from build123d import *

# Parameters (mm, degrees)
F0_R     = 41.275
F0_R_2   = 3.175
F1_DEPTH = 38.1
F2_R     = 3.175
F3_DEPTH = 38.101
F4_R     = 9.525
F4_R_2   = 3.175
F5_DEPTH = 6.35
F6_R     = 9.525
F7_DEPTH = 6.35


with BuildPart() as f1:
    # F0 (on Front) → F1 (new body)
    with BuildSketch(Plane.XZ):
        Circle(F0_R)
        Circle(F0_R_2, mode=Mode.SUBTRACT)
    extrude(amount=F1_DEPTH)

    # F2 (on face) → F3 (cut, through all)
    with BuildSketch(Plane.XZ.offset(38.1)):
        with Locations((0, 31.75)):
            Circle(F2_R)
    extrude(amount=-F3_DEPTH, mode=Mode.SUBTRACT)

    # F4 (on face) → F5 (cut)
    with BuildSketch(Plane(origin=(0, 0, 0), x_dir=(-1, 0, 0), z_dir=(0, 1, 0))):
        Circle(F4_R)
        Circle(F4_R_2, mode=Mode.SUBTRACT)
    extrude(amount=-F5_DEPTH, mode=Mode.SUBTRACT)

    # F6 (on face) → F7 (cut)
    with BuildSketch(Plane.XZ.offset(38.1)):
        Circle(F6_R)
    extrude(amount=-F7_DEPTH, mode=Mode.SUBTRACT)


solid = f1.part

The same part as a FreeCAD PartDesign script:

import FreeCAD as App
import Part
import Sketcher

V = App.Vector
Q = App.Units.Quantity

doc = App.newDocument("Part")
body = doc.addObject("PartDesign::Body", "Body")

sketch1 = doc.addObject("Sketcher::SketchObject", "Sketch")
body.addObject(sketch1)
sketch1.AttachmentSupport = (doc.XZ_Plane, [""])
sketch1.MapMode = "FlatFace"
sketch1.addGeometry(Part.Circle(V(0, 0, 0), V(0, 0, 1), 41.275), False)
sketch1.addGeometry(Part.Circle(V(0, 0, 0), V(0, 0, 1), 3.175), False)
sketch1.addConstraint(Sketcher.Constraint("Coincident", 0, 3, -1, 1))
sketch1.addConstraint(Sketcher.Constraint("Coincident", 1, 3, -1, 1))
sketch1.addConstraint(Sketcher.Constraint("Diameter", 0, Q("3.25 in")))
sketch1.addConstraint(Sketcher.Constraint("Diameter", 1, Q("0.25 in")))
pad1 = doc.addObject("PartDesign::Pad", "Pad")
body.addObject(pad1)
pad1.Profile = sketch1
pad1.Length = Q("1.5 in")

sketch2 = doc.addObject("Sketcher::SketchObject", "Sketch001")
body.addObject(sketch2)
sketch2.AttachmentSupport = (doc.XZ_Plane, [""])
sketch2.MapMode = "FlatFace"
sketch2.AttachmentOffset = App.Placement(V(0, 0, 1.5 * 25.4), App.Rotation())
sketch2.addGeometry(Part.Circle(V(0, 31.75, 0), V(0, 0, 1), 3.175), False)
sketch2.addConstraint(Sketcher.Constraint("PointOnObject", 0, 3, -2))
sketch2.addConstraint(Sketcher.Constraint("Diameter", 0, Q("0.25 in")))
sketch2.addConstraint(Sketcher.Constraint("DistanceY", -1, 1, 0, 3, Q("1.25 in")))
pocket1 = doc.addObject("PartDesign::Pocket", "Pocket")
body.addObject(pocket1)
pocket1.Profile = sketch2
pocket1.Type = "ThroughAll"

sketch3 = doc.addObject("Sketcher::SketchObject", "Sketch002")
body.addObject(sketch3)
sketch3.AttachmentSupport = (doc.XZ_Plane, [""])
sketch3.MapMode = "FlatFace"
sketch3.addGeometry(Part.Circle(V(0, 0, 0), V(0, 0, 1), 9.525), False)
sketch3.addGeometry(Part.Circle(V(0, 0, 0), V(0, 0, 1), 3.175), False)
sketch3.addConstraint(Sketcher.Constraint("Coincident", 0, 3, -1, 1))
sketch3.addConstraint(Sketcher.Constraint("Coincident", 1, 3, -1, 1))
sketch3.addConstraint(Sketcher.Constraint("Diameter", 0, Q("0.75 in")))
sketch3.addConstraint(Sketcher.Constraint("Diameter", 1, Q("0.25 in")))
pocket2 = doc.addObject("PartDesign::Pocket", "Pocket001")
body.addObject(pocket2)
pocket2.Profile = sketch3
pocket2.Length = Q("0.25 in")
pocket2.Reversed = True

sketch4 = doc.addObject("Sketcher::SketchObject", "Sketch003")
body.addObject(sketch4)
sketch4.AttachmentSupport = (doc.XZ_Plane, [""])
sketch4.MapMode = "FlatFace"
sketch4.AttachmentOffset = App.Placement(V(0, 0, 1.5 * 25.4), App.Rotation())
sketch4.addGeometry(Part.Circle(V(0, 0, 0), V(0, 0, 1), 9.525), False)
sketch4.addConstraint(Sketcher.Constraint("Coincident", 0, 3, -1, 1))
sketch4.addConstraint(Sketcher.Constraint("Diameter", 0, Q("0.75 in")))
pocket3 = doc.addObject("PartDesign::Pocket", "Pocket002")
body.addObject(pocket3)
pocket3.Profile = sketch4
pocket3.Length = Q("0.25 in")

doc.recompute()
